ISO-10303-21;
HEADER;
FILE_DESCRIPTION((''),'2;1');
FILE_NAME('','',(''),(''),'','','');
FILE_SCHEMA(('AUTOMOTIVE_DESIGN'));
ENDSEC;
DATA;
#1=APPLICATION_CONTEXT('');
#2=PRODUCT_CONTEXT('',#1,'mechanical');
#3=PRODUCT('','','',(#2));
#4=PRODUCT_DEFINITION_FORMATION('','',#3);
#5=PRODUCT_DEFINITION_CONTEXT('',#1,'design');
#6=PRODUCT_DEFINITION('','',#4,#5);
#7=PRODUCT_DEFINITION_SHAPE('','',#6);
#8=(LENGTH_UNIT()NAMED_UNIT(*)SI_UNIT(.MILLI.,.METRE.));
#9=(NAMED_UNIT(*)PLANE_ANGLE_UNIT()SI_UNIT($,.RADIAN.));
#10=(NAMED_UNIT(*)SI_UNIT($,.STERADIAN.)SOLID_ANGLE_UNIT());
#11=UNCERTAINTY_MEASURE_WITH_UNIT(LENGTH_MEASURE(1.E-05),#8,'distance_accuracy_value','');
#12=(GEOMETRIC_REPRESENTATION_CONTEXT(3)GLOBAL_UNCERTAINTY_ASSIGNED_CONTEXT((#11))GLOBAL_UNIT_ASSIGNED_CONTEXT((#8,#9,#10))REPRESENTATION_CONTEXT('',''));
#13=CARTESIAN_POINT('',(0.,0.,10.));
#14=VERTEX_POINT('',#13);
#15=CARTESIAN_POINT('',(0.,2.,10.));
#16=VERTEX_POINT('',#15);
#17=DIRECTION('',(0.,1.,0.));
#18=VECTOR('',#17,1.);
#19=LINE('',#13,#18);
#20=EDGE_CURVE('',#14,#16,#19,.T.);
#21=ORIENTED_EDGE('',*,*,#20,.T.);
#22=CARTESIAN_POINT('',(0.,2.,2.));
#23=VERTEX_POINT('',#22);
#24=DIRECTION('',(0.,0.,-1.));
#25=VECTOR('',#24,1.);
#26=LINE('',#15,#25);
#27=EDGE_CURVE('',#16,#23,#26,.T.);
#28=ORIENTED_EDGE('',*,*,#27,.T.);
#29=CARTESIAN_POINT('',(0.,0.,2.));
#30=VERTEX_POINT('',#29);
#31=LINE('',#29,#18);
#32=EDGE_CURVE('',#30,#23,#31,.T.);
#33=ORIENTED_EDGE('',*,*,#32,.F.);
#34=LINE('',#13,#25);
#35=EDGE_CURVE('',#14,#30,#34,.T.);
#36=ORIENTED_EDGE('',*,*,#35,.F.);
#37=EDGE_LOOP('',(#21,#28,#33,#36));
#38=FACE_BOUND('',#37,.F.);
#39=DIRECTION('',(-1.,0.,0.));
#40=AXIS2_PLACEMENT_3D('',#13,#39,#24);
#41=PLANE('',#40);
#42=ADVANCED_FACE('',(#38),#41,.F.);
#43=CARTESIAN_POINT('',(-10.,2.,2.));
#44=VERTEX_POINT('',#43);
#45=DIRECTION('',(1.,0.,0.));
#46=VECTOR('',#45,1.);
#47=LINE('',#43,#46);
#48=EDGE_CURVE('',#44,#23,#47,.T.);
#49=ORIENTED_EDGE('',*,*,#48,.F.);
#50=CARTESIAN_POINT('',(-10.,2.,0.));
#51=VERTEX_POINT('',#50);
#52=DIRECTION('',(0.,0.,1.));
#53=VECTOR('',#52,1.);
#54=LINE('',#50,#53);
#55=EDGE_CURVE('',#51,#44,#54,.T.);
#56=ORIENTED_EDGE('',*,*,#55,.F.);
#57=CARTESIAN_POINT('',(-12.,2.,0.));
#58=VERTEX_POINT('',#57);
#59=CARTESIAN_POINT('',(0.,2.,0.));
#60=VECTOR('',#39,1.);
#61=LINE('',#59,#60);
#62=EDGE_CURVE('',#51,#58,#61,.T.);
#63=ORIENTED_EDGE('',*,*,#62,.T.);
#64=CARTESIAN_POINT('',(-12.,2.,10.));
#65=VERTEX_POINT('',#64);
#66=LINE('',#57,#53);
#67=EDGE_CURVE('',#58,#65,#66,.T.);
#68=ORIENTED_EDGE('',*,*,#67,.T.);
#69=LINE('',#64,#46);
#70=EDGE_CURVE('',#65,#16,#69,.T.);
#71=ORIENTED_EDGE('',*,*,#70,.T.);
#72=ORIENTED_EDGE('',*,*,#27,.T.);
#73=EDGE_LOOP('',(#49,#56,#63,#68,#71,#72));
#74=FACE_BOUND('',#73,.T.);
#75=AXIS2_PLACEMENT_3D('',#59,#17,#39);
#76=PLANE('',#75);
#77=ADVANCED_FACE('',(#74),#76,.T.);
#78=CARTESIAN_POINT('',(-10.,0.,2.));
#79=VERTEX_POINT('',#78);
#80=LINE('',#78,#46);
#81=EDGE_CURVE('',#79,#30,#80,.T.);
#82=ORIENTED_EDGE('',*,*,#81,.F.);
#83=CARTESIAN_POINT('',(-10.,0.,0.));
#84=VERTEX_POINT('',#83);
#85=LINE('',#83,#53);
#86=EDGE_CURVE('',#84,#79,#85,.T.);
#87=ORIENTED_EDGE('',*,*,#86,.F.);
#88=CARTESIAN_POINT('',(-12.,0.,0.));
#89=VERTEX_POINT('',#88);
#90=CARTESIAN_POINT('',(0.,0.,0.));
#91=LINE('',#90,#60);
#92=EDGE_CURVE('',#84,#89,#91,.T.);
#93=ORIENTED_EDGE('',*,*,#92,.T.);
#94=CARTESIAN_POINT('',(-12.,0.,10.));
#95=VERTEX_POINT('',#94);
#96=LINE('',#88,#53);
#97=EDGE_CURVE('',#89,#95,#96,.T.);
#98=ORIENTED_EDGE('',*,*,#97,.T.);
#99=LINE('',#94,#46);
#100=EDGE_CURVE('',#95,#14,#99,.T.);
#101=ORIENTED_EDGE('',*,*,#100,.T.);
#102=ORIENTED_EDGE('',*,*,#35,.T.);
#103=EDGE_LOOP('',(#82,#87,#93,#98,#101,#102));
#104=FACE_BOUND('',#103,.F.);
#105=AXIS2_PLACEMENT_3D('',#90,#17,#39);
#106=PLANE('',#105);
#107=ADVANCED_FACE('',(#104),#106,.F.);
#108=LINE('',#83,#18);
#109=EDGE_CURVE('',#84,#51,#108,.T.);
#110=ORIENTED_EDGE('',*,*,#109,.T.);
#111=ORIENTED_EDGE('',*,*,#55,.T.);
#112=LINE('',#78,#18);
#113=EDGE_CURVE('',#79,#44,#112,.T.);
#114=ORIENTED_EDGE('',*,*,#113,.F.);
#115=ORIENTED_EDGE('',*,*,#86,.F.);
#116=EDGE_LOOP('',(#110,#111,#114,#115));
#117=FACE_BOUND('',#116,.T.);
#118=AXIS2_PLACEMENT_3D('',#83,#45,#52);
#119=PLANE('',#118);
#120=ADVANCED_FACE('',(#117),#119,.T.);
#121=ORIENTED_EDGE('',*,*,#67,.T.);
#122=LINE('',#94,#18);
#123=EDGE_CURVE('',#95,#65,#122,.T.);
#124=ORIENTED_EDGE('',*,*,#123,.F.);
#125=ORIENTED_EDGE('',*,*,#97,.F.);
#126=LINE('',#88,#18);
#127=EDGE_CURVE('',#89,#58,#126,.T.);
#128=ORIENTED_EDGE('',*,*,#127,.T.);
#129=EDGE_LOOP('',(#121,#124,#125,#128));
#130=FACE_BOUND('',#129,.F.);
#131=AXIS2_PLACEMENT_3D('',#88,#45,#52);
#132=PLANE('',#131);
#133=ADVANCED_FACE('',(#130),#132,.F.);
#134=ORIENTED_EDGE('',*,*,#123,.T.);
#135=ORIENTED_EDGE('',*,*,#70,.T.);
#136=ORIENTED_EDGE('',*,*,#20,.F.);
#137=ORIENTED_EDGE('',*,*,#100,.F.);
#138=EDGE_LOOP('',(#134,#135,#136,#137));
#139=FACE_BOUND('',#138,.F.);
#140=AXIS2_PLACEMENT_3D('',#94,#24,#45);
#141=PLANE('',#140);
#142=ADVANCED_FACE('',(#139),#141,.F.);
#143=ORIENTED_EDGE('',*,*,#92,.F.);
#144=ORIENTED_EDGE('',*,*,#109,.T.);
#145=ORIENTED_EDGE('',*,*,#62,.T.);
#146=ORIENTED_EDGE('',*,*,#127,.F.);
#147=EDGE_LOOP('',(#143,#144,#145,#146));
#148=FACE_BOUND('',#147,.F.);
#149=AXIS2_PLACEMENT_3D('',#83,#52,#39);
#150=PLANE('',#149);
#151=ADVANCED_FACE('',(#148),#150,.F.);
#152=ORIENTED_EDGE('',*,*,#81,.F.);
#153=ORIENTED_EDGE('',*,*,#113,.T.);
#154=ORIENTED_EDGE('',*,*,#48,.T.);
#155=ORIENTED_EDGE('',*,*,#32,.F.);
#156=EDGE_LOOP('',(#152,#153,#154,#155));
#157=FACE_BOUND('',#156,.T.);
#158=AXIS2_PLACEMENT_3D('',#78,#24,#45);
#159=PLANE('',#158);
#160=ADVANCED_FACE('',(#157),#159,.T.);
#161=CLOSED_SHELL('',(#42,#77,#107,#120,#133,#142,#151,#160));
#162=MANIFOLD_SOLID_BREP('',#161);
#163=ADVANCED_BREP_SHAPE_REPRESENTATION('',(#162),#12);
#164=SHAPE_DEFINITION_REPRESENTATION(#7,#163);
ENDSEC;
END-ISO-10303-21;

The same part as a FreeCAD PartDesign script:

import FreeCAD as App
import Part
import Sketcher

V = App.Vector
Q = App.Units.Quantity

doc = App.newDocument("Part")
body = doc.addObject("PartDesign::Body", "Body")

sketch1 = body.newObject("Sketcher::SketchObject", "Sketch")
sketch1.AttachmentSupport = (doc.getObject("XZ_Plane"), [""])
sketch1.MapMode = "FlatFace"
sketch1.addGeometry([
    Part.LineSegment(V(-10, 2, 0), V(-10, 0, 0)),
    Part.LineSegment(V(-10, 0, 0), V(-12, 0, 0)),
    Part.LineSegment(V(-12, 0, 0), V(-12, 10, 0)),
    Part.LineSegment(V(-12, 10, 0), V(0, 10, 0)),
    Part.LineSegment(V(0, 10, 0), V(0, 2, 0)),
    Part.LineSegment(V(0, 2, 0), V(-10, 2, 0)),
], False)
sketch1.addConstraint([
    Sketcher.Constraint("Coincident", 0, 2, 1, 1),
    Sketcher.Constraint("Coincident", 1, 2, 2, 1),
    Sketcher.Constraint("Coincident", 2, 2, 3, 1),
    Sketcher.Constraint("Coincident", 3, 2, 4, 1),
    Sketcher.Constraint("Coincident", 4, 2, 5, 1),
    Sketcher.Constraint("Coincident", 5, 2, 0, 1),
    Sketcher.Constraint("Vertical", 0),
    Sketcher.Constraint("Horizontal", 1),
    Sketcher.Constraint("Vertical", 2),
    Sketcher.Constraint("Horizontal", 3),
    Sketcher.Constraint("Vertical", 4),
    Sketcher.Constraint("Horizontal", 5),
    Sketcher.Constraint("PointOnObject", 0, 2, -1),
    Sketcher.Constraint("PointOnObject", 3, 2, -2),
    Sketcher.Constraint("Equal", 1, 0),
    Sketcher.Constraint("Equal", 5, 2),
    Sketcher.Constraint("DistanceX", 1, 2, 1, 1, Q("2 mm")),
    Sketcher.Constraint("DistanceX", 3, 1, 3, 2, Q("12 mm")),
])
pad1 = body.newObject("PartDesign::Pad", "Pad")
pad1.Profile = sketch1
pad1.Length = 2
pad1.Reversed = True

doc.recompute()
